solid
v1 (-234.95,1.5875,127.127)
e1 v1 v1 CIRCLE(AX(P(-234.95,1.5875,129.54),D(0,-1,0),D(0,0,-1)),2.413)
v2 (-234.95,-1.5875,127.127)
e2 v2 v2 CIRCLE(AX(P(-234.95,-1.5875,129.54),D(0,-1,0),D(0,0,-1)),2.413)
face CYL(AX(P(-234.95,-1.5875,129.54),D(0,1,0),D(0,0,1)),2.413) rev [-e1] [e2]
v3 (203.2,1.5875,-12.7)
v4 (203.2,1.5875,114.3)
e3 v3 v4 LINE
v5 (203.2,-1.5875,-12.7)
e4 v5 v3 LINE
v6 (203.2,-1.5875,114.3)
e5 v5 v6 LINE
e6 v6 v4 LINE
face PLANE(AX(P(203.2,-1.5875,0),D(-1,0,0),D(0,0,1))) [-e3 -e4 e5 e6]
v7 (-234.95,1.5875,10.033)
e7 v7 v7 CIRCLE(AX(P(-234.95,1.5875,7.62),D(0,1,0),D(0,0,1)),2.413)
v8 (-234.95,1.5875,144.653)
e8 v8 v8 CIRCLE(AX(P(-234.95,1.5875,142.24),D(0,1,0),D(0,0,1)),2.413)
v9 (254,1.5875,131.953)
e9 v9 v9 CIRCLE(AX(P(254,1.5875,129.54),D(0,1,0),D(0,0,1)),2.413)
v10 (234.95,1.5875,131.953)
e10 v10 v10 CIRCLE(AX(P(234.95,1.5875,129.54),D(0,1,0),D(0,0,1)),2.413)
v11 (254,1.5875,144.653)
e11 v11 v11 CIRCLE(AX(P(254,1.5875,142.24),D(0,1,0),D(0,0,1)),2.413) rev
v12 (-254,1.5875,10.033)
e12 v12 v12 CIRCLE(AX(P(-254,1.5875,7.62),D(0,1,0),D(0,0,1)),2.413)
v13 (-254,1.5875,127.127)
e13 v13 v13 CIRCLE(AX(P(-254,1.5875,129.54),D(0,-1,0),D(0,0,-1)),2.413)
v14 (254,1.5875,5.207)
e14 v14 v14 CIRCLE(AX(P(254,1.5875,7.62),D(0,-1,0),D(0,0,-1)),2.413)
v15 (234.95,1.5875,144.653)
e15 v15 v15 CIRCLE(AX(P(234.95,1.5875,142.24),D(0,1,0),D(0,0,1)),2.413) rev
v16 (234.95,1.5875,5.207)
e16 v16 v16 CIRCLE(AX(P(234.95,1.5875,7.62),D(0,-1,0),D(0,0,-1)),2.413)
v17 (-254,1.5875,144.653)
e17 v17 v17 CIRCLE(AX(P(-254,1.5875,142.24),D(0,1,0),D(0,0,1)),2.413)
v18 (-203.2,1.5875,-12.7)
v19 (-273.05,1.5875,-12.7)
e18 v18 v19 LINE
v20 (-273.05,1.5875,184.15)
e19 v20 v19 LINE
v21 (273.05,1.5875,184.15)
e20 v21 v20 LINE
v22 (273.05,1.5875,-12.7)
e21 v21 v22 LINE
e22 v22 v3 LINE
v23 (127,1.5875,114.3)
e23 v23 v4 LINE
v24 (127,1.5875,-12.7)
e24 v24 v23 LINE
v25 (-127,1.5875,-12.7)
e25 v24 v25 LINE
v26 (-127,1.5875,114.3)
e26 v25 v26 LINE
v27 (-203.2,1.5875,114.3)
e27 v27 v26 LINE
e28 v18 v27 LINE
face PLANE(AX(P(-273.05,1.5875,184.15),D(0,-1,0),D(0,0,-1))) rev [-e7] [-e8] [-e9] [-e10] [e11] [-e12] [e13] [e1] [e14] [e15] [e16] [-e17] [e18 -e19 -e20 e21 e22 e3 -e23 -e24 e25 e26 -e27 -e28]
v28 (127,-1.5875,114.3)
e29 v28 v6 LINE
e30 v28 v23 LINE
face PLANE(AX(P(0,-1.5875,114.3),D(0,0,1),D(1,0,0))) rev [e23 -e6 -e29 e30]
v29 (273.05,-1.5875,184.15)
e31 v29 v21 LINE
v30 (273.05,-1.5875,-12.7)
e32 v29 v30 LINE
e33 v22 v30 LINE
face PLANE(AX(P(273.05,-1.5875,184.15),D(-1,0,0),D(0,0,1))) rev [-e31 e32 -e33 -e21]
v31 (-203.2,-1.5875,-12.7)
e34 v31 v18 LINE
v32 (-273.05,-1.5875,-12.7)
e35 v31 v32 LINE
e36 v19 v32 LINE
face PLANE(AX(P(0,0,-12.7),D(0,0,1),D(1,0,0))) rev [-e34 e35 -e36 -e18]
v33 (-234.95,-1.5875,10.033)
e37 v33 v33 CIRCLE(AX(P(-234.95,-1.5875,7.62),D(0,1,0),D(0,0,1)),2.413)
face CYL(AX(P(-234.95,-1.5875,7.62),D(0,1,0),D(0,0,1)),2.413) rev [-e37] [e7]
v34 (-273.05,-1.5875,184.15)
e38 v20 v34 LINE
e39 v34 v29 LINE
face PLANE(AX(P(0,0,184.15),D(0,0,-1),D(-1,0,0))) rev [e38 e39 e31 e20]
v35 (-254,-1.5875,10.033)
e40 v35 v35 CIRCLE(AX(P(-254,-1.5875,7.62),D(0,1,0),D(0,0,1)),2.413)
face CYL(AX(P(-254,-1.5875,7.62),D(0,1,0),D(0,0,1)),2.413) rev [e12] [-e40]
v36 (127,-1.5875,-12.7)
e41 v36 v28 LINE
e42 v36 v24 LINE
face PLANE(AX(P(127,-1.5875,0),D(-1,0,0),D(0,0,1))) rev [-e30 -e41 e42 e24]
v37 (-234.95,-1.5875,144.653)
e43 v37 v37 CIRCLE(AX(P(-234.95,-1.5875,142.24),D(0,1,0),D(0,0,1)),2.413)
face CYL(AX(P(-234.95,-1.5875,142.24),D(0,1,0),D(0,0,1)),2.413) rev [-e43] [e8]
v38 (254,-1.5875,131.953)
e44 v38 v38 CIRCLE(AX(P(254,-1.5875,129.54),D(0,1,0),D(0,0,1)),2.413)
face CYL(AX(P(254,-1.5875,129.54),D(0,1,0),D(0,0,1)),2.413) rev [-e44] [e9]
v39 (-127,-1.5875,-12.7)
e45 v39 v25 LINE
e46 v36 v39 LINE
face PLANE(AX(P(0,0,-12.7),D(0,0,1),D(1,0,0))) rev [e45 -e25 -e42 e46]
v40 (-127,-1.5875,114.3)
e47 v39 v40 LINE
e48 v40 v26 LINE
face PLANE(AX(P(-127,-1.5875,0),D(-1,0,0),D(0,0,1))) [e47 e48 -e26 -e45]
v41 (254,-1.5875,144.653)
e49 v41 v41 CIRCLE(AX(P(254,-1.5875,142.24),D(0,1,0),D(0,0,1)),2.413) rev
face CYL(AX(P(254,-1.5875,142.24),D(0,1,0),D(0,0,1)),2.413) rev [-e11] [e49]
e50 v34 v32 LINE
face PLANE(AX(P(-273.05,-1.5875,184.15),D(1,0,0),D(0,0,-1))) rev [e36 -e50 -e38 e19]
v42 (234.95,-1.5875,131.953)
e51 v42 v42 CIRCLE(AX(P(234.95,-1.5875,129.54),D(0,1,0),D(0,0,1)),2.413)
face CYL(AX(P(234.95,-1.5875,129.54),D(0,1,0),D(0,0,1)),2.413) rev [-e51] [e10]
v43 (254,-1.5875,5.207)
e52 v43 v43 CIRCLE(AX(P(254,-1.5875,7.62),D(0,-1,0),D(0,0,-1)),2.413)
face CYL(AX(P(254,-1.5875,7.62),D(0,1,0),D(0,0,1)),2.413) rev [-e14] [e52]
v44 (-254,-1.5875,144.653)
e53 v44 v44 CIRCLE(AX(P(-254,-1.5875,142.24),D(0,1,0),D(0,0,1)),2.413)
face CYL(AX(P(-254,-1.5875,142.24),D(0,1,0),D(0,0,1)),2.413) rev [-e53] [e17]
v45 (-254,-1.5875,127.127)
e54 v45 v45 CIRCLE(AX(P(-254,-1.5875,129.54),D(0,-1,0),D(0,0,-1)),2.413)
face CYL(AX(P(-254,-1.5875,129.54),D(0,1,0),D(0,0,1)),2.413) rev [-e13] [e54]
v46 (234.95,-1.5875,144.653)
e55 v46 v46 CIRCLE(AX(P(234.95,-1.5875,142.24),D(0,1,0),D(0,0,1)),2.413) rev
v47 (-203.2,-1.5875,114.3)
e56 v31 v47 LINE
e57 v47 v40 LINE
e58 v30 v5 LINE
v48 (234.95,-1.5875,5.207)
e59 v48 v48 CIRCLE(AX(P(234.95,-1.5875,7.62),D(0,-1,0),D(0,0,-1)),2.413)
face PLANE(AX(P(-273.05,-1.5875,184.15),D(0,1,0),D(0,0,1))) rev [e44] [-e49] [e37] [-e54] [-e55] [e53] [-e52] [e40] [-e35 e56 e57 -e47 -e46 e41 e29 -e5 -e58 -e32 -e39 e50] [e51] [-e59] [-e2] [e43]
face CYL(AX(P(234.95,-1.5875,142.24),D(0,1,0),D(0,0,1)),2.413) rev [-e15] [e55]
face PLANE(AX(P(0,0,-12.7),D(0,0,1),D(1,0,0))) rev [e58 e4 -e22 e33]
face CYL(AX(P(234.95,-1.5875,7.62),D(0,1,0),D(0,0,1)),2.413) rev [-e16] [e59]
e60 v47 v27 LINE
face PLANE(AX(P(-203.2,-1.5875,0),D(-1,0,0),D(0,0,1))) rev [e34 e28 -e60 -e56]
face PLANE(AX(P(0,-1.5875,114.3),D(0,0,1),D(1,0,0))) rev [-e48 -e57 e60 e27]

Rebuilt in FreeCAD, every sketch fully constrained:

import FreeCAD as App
import Part
import Sketcher
from FreeCAD import Vector
Q = App.Units.Quantity

doc = App.newDocument("Part")
body = doc.addObject("PartDesign::Body", "Body")

# Sketch on XY plane
sketch1 = body.newObject("Sketcher::SketchObject", "Sketch")
sketch1.AttachmentSupport = (doc.getObject("XY_Plane"), [""])
sketch1.MapMode = "FlatFace"
sketch1.addGeometry(Part.LineSegment(Vector(-273.05, 1.5875, 0), Vector(-273.05, -1.5875, 0)), False)
sketch1.addGeometry(Part.LineSegment(Vector(-273.05, -1.5875, 0), Vector(273.05, -1.5875, 0)), False)
sketch1.addGeometry(Part.LineSegment(Vector(273.05, -1.5875, 0), Vector(273.05, 1.5875, 0)), False)
sketch1.addGeometry(Part.LineSegment(Vector(273.05, 1.5875, 0), Vector(-273.05, 1.5875, 0)), False)
sketch1.addConstraint(Sketcher.Constraint("Coincident", 0, 2, 1, 1))
sketch1.addConstraint(Sketcher.Constraint("Coincident", 1, 2, 2, 1))
sketch1.addConstraint(Sketcher.Constraint("Coincident", 2, 2, 3, 1))
sketch1.addConstraint(Sketcher.Constraint("Coincident", 3, 2, 0, 1))
sketch1.addConstraint(Sketcher.Constraint("Vertical", 0))
sketch1.addConstraint(Sketcher.Constraint("Horizontal", 1))
sketch1.addConstraint(Sketcher.Constraint("Vertical", 2))
sketch1.addConstraint(Sketcher.Constraint("Horizontal", 3))
sketch1.addConstraint(Sketcher.Constraint("Symmetric", 0, 2, 2, 2, -1, 1))
sketch1.addConstraint(Sketcher.Constraint("DistanceX", 1, 1, 1, 2, Q("21.5 in")))
sketch1.addConstraint(Sketcher.Constraint("DistanceY", 0, 2, 0, 1, Q("0.125 in")))
pad1 = body.newObject("PartDesign::Pad", "Pad")
pad1.Profile = sketch1
pad1.Length = Q("7.25 in")

# Sketch on XZ plane
sketch2 = body.newObject("Sketcher::SketchObject", "Sketch001")
sketch2.AttachmentSupport = (doc.getObject("XZ_Plane"), [""])
sketch2.MapMode = "FlatFace"
sketch2.AttachmentOffset = App.Placement(Vector(0, 0, -0.0625 * 25.4), App.Rotation())
sketch2.addGeometry(Part.Circle(Vector(-234.95, 129.54, 0), Vector(0, 0, 1), 2.413), False)
sketch2.addGeometry(Part.Circle(Vector(-254, 129.54, 0), Vector(0, 0, 1), 2.413), False)
sketch2.addGeometry(Part.Circle(Vector(-254, 7.62, 0), Vector(0, 0, 1), 2.413), False)
sketch2.addGeometry(Part.Circle(Vector(-234.95, 7.62, 0), Vector(0, 0, 1), 2.413), False)
sketch2.addGeometry(Part.Circle(Vector(254, 7.62, 0), Vector(0, 0, 1), 2.413), False)
sketch2.addGeometry(Part.Circle(Vector(234.95, 7.62, 0), Vector(0, 0, 1), 2.413), False)
sketch2.addGeometry(Part.Circle(Vector(254, 129.54, 0), Vector(0, 0, 1), 2.413), False)
sketch2.addGeometry(Part.Circle(Vector(234.95, 129.54, 0), Vector(0, 0, 1), 2.413), False)
sketch2.addConstraint(Sketcher.Constraint("Equal", 0, 1))
sketch2.addConstraint(Sketcher.Constraint("Equal", 1, 2))
sketch2.addConstraint(Sketcher.Constraint("Equal", 2, 3))
sketch2.addConstraint(Sketcher.Constraint("Equal", 3, 4))
sketch2.addConstraint(Sketcher.Constraint("Equal", 4, 5))
sketch2.addConstraint(Sketcher.Constraint("Equal", 5, 6))
sketch2.addConstraint(Sketcher.Constraint("Equal", 6, 7))
sketch2.addConstraint(Sketcher.Constraint("Symmetric", 2, 3, 4, 3, -2))
sketch2.addConstraint(Sketcher.Constraint("Symmetric", 3, 3, 5, 3, -2))
sketch2.addConstraint(Sketcher.Constraint("Symmetric", 1, 3, 6, 3, -2))
sketch2.addConstraint(Sketcher.Constraint("Symmetric", 0, 3, 7, 3, -2))
sketch2.addConstraint(Sketcher.Constraint("Horizontal", 0, 3, 1, 3))
sketch2.addConstraint(Sketcher.Constraint("Horizontal", 2, 3, 3, 3))
sketch2.addConstraint(Sketcher.Constraint("Vertical", 1, 3, 2, 3))
sketch2.addConstraint(Sketcher.Constraint("Vertical", 0, 3, 3, 3))
sketch2.addConstraint(Sketcher.Constraint("Diameter", 0, Q("0.19 in")))
sketch2.addConstraint(Sketcher.Constraint("DistanceX", 1, 3, -1, 1, Q("10 in")))
sketch2.addConstraint(Sketcher.Constraint("DistanceY", -1, 1, 0, 3, Q("5.1 in")))
sketch2.addConstraint(Sketcher.Constraint("DistanceY", -1, 1, 2, 3, Q("0.3 in")))
sketch2.addConstraint(Sketcher.Constraint("DistanceX", 3, 3, 5, 3, Q("18.5 in")))
pocket1 = body.newObject("PartDesign::Pocket", "Pocket")
pocket1.Profile = sketch2
pocket1.Type = "ThroughAll"
pocket1.Reversed = True

# Sketch on XY plane
sketch3 = body.newObject("Sketcher::SketchObject", "Sketch002")
sketch3.AttachmentSupport = (doc.getObject("XY_Plane"), [""])
sketch3.MapMode = "FlatFace"
sketch3.addGeometry(Part.LineSegment(Vector(273.05, 1.5875, 0), Vector(273.05, -1.5875, 0)), False)
sketch3.addGeometry(Part.LineSegment(Vector(273.05, -1.5875, 0), Vector(-273.05, -1.5875, 0)), False)
sketch3.addGeometry(Part.LineSegment(Vector(-273.05, -1.5875, 0), Vector(-273.05, 1.5875, 0)), False)
sketch3.addGeometry(Part.LineSegment(Vector(-273.05, 1.5875, 0), Vector(273.05, 1.5875, 0)), False)
sketch3.addConstraint(Sketcher.Constraint("Coincident", 0, 2, 1, 1))
sketch3.addConstraint(Sketcher.Constraint("Coincident", 1, 2, 2, 1))
sketch3.addConstraint(Sketcher.Constraint("Coincident", 2, 2, 3, 1))
sketch3.addConstraint(Sketcher.Constraint("Coincident", 3, 2, 0, 1))
sketch3.addConstraint(Sketcher.Constraint("Vertical", 0))
sketch3.addConstraint(Sketcher.Constraint("Horizontal", 1))
sketch3.addConstraint(Sketcher.Constraint("Vertical", 2))
sketch3.addConstraint(Sketcher.Constraint("Horizontal", 3))
sketch3.addConstraint(Sketcher.Constraint("Symmetric", 0, 2, 2, 2, -1, 1))
sketch3.addConstraint(Sketcher.Constraint("DistanceX", 1, 2, 1, 1, Q("21.5 in")))
sketch3.addConstraint(Sketcher.Constraint("DistanceY", 0, 2, 0, 1, Q("0.125 in")))
pad2 = body.newObject("PartDesign::Pad", "Pad001")
pad2.Profile = sketch3
pad2.Length = Q("0.5 in")
pad2.Reversed = True

# Sketch on XZ plane
sketch4 = body.newObject("Sketcher::SketchObject", "Sketch003")
sketch4.AttachmentSupport = (doc.getObject("XZ_Plane"), [""])
sketch4.MapMode = "FlatFace"
sketch4.AttachmentOffset = App.Placement(Vector(0, 0, -0.0625 * 25.4), App.Rotation())
sketch4.addGeometry(Part.LineSegment(Vector(-203.2, -12.7, 0), Vector(-203.2, 114.3, 0)), False)
sketch4.addGeometry(Part.LineSegment(Vector(-203.2, 114.3, 0), Vector(-127, 114.3, 0)), False)
sketch4.addGeometry(Part.LineSegment(Vector(-127, 114.3, 0), Vector(-127, -12.7, 0)), False)
sketch4.addGeometry(Part.LineSegment(Vector(-127, -12.7, 0), Vector(-203.2, -12.7, 0)), False)
sketch4.addGeometry(Part.LineSegment(Vector(127, -12.7, 0), Vector(127, 114.3, 0)), False)
sketch4.addGeometry(Part.LineSegment(Vector(127, 114.3, 0), Vector(203.2, 114.3, 0)), False)
sketch4.addGeometry(Part.LineSegment(Vector(203.2, 114.3, 0), Vector(203.2, -12.7, 0)), False)
sketch4.addGeometry(Part.LineSegment(Vector(203.2, -12.7, 0), Vector(127, -12.7, 0)), False)
sketch4.addConstraint(Sketcher.Constraint("Coincident", 0, 2, 1, 1))
sketch4.addConstraint(Sketcher.Constraint("Coincident", 1, 2, 2, 1))
sketch4.addConstraint(Sketcher.Constraint("Coincident", 2, 2, 3, 1))
sketch4.addConstraint(Sketcher.Constraint("Coincident", 3, 2, 0, 1))
sketch4.addConstraint(Sketcher.Constraint("Coincident", 4, 2, 5, 1))
sketch4.addConstraint(Sketcher.Constraint("Coincident", 5, 2, 6, 1))
sketch4.addConstraint(Sketcher.Constraint("Coincident", 6, 2, 7, 1))
sketch4.addConstraint(Sketcher.Constraint("Coincident", 7, 2, 4, 1))
sketch4.addConstraint(Sketcher.Constraint("Vertical", 0))
sketch4.addConstraint(Sketcher.Constraint("Horizontal", 1))
sketch4.addConstraint(Sketcher.Constraint("Vertical", 2))
sketch4.addConstraint(Sketcher.Constraint("Horizontal", 3))
sketch4.addConstraint(Sketcher.Constraint("Vertical", 4))
sketch4.addConstraint(Sketcher.Constraint("Horizontal", 5))
sketch4.addConstraint(Sketcher.Constraint("Vertical", 6))
sketch4.addConstraint(Sketcher.Constraint("Horizontal", 7))
sketch4.addConstraint(Sketcher.Constraint("Symmetric", 1, 2, 4, 2, -2))
sketch4.addConstraint(Sketcher.Constraint("Symmetric", 3, 2, 6, 2, -2))
sketch4.addConstraint(Sketcher.Constraint("DistanceX", 1, 1, 1, 2, Q("3 in")))
sketch4.addConstraint(Sketcher.Constraint("DistanceY", 0, 1, 0, 2, Q("5 in")))
sketch4.addConstraint(Sketcher.Constraint("DistanceX", 0, 2, -1, 1, Q("8 in")))
sketch4.addConstraint(Sketcher.Constraint("DistanceY", -1, 1, 0, 2, Q("4.5 in")))
pocket2 = body.newObject("PartDesign::Pocket", "Pocket001")
pocket2.Profile = sketch4
pocket2.Type = "ThroughAll"
pocket2.Reversed = True

# Sketch on XZ plane
sketch5 = body.newObject("Sketcher::SketchObject", "Sketch004")
sketch5.AttachmentSupport = (doc.getObject("XZ_Plane"), [""])
sketch5.MapMode = "FlatFace"
sketch5.AttachmentOffset = App.Placement(Vector(0, 0, -0.0625 * 25.4), App.Rotation())
sketch5.addGeometry(Part.Circle(Vector(-254, 142.24, 0), Vector(0, 0, 1), 2.413), False)
sketch5.addGeometry(Part.Circle(Vector(-234.95, 142.24, 0), Vector(0, 0, 1), 2.413), False)
sketch5.addGeometry(Part.Circle(Vector(254, 142.24, 0), Vector(0, 0, 1), 2.413), False)
sketch5.addGeometry(Part.Circle(Vector(234.95, 142.24, 0), Vector(0, 0, 1), 2.413), False)
sketch5.addConstraint(Sketcher.Constraint("Equal", 0, 1))
sketch5.addConstraint(Sketcher.Constraint("Equal", 1, 2))
sketch5.addConstraint(Sketcher.Constraint("Equal", 2, 3))
sketch5.addConstraint(Sketcher.Constraint("Symmetric", 0, 3, 2, 3, -2))
sketch5.addConstraint(Sketcher.Constraint("Symmetric", 1, 3, 3, 3, -2))
sketch5.addConstraint(Sketcher.Constraint("Horizontal", 0, 3, 1, 3))
sketch5.addConstraint(Sketcher.Constraint("Diameter", 0, Q("0.19 in")))
sketch5.addConstraint(Sketcher.Constraint("DistanceX", 0, 3, -1, 1, Q("10 in")))
sketch5.addConstraint(Sketcher.Constraint("DistanceY", -1, 1, 0, 3, Q("5.6 in")))
sketch5.addConstraint(Sketcher.Constraint("DistanceX", 1, 3, 3, 3, Q("18.5 in")))
pocket3 = body.newObject("PartDesign::Pocket", "Pocket002")
pocket3.Profile = sketch5
pocket3.Type = "ThroughAll"
pocket3.Reversed = True

doc.recompute()
